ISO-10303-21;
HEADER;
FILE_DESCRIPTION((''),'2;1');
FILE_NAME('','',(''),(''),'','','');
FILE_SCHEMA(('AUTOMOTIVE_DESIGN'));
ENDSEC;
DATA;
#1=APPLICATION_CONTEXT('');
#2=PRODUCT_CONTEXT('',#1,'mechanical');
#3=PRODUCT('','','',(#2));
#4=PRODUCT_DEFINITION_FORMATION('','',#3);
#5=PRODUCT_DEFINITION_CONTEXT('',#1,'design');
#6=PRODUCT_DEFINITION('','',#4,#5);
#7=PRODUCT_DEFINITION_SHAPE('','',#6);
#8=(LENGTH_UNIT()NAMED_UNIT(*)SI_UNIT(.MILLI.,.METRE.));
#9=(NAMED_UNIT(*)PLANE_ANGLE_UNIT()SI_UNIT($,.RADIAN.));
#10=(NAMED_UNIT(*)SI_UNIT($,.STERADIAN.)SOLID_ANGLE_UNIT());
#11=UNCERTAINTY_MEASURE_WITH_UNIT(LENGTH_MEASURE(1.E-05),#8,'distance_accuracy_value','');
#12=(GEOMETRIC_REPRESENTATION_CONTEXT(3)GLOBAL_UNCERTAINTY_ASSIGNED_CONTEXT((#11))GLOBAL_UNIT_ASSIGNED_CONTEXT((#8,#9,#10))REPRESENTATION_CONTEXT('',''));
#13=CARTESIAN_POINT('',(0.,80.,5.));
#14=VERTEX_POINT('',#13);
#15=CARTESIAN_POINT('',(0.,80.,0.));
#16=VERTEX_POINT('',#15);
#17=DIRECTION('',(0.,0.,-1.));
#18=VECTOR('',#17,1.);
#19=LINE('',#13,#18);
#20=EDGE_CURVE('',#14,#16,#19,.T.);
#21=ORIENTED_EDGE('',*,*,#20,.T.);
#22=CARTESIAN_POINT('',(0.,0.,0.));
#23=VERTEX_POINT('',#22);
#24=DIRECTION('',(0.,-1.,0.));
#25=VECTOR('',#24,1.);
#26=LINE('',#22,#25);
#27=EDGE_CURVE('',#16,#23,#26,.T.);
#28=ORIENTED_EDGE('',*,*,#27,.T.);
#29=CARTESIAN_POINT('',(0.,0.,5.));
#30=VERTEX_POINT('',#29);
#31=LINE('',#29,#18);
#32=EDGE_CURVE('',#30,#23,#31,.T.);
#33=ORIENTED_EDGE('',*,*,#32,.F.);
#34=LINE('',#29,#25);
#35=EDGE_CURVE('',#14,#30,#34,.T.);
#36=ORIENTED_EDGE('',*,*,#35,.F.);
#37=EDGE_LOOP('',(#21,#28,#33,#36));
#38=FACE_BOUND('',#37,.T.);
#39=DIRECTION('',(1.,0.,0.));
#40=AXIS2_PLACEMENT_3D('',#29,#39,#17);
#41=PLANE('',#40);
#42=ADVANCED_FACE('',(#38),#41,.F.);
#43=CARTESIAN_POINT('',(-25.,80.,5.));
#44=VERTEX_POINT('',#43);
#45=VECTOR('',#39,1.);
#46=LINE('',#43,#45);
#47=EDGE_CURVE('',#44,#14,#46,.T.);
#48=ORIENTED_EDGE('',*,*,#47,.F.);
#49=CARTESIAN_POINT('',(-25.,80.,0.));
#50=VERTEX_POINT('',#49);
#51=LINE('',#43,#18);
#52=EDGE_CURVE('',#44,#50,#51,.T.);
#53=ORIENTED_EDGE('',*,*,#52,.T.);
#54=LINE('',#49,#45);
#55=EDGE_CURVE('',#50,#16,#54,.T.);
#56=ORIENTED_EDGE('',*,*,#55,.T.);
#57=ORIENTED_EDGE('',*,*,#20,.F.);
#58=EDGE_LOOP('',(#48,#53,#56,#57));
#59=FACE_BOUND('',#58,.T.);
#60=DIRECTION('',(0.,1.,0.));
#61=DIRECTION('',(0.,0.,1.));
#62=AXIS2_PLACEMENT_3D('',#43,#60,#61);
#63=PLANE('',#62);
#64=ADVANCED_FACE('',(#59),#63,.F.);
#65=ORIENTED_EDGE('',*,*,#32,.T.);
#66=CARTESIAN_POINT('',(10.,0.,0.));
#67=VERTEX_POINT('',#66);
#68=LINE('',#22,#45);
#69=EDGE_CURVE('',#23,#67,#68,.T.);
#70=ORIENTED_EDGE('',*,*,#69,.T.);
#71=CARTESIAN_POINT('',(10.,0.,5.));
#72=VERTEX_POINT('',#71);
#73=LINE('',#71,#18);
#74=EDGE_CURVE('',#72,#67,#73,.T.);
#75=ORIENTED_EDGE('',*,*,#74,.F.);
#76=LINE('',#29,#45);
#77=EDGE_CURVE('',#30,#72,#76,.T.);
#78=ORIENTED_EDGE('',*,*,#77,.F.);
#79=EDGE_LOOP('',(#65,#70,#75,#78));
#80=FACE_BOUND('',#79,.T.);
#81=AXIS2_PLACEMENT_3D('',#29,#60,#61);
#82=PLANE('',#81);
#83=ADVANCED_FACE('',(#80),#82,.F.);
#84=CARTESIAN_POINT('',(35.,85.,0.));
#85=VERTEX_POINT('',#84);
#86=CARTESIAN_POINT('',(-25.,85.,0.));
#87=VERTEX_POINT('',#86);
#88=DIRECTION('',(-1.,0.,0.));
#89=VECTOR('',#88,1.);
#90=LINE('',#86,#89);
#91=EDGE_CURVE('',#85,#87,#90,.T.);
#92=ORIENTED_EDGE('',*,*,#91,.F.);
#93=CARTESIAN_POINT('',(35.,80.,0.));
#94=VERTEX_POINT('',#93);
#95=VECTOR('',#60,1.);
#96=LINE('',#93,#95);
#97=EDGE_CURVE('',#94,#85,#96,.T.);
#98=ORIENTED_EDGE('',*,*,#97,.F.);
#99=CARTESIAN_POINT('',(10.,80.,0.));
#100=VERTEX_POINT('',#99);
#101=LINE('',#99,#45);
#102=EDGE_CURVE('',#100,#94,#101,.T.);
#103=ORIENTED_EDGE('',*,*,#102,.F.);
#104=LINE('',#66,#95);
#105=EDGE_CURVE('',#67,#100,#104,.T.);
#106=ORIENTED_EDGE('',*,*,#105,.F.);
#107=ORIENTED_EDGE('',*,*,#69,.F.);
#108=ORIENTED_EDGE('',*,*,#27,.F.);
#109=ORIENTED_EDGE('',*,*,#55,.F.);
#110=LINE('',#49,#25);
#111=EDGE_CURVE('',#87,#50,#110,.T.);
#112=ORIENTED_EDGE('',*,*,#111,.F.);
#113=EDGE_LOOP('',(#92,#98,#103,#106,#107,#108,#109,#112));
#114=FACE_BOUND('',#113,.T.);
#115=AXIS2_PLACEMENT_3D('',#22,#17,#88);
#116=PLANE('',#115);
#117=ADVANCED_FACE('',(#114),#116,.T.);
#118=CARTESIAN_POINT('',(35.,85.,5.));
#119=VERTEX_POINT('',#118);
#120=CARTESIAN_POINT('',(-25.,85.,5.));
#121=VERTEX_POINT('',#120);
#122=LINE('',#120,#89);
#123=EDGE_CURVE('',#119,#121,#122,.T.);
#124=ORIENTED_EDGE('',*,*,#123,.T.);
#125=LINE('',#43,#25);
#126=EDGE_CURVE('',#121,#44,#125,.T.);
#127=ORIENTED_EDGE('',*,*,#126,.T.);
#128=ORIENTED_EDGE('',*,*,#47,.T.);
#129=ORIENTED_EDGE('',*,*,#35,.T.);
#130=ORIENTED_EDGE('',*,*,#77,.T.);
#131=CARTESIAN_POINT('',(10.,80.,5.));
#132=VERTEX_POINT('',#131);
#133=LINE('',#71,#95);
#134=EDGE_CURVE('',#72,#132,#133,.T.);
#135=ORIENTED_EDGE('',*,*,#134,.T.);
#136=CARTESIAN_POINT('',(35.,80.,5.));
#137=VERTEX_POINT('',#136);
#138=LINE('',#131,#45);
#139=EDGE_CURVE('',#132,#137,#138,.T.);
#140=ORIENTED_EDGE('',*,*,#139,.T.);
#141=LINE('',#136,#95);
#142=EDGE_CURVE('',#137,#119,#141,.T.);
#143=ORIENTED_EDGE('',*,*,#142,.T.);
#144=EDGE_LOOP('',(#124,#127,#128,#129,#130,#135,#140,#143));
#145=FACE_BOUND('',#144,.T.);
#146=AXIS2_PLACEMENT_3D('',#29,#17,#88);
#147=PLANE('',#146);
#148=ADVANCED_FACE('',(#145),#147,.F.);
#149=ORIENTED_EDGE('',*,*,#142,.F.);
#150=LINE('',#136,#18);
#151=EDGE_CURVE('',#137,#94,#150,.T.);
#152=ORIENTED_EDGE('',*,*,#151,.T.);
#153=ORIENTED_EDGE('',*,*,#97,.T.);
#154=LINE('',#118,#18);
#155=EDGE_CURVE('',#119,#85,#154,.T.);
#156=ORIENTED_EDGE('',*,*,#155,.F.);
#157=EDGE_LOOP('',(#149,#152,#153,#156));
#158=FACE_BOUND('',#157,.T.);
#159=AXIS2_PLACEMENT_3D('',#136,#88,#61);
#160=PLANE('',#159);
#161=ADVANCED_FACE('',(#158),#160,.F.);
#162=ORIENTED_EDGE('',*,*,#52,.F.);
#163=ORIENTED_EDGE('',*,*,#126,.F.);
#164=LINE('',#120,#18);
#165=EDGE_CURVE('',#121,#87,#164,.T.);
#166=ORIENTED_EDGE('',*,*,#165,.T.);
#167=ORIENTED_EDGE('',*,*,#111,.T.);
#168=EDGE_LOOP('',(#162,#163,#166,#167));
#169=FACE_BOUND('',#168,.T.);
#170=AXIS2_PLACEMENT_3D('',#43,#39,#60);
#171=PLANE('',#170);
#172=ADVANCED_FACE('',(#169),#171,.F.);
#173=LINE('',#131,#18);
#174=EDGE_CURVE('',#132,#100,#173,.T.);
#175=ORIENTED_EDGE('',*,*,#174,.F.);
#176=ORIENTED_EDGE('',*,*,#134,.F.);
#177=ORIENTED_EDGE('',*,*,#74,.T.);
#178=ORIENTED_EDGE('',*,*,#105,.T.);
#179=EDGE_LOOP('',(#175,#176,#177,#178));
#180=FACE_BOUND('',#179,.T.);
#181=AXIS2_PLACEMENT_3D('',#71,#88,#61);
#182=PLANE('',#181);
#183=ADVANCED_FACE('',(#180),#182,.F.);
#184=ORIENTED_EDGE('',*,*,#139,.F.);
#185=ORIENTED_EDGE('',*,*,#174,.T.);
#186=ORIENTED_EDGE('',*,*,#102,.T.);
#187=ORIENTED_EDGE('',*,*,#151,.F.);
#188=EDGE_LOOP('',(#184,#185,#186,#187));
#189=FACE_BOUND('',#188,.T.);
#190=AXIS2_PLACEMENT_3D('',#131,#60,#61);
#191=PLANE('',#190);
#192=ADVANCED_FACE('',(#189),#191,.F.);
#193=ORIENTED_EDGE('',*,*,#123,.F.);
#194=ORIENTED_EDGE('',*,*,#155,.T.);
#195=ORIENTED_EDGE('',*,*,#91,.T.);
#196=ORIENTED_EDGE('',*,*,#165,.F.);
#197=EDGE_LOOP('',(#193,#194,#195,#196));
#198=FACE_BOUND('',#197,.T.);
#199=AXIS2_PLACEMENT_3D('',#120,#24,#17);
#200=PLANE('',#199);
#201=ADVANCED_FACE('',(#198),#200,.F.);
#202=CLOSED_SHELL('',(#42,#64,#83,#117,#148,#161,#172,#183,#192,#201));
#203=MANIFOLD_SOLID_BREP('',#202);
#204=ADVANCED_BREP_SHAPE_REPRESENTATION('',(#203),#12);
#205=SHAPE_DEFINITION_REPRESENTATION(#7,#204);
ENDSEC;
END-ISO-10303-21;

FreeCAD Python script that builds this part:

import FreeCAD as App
import Part
import Sketcher


def add_polygon(sketch, points):
    """Adds a closed chain of lines whose ends are joined by coincident constraints."""
    first, n = sketch.GeometryCount, len(points)
    for a, b in zip(points, points[1:] + points[:1]):
        sketch.addGeometry(Part.LineSegment(App.Vector(*a, 0), App.Vector(*b, 0)), False)
    for i in range(n):
        sketch.addConstraint(Sketcher.Constraint("Coincident", first + i, 2, first + (i + 1) % n, 1))

doc = App.newDocument("Part")
params = doc.addObject("Spreadsheet::Sheet", "Params")
for row, (alias, value) in enumerate([
    ("sketch1_width", "25 mm"),
    ("sketch1_width2", "60 mm"),
    ("sketch1_height", "5 mm"),
    ("sketch1_height2", "80 mm"),
    ("pad1_length", "5 mm"),
], start=1):
    params.set(f"A{row}", alias)
    params.set(f"B{row}", "=" + value)
    params.setAlias(f"B{row}", alias)

body = doc.addObject("PartDesign::Body", "Body")

sketch1 = doc.addObject("Sketcher::SketchObject", "Sketch")
body.addObject(sketch1)
sketch1.AttachmentSupport = (doc.XY_Plane, [""])
sketch1.MapMode = "FlatFace"
add_polygon(sketch1, [(10, 80), (35, 80), (35, 85), (-25, 85), (-25, 80), (0, 80), (0, 0), (10, 0)])
sketch1.addConstraint(Sketcher.Constraint("Horizontal", 0))
sketch1.addConstraint(Sketcher.Constraint("Vertical", 1))
sketch1.addConstraint(Sketcher.Constraint("Horizontal", 2))
sketch1.addConstraint(Sketcher.Constraint("Vertical", 3))
sketch1.addConstraint(Sketcher.Constraint("Horizontal", 4))
sketch1.addConstraint(Sketcher.Constraint("Vertical", 5))
sketch1.addConstraint(Sketcher.Constraint("Horizontal", 6))
sketch1.addConstraint(Sketcher.Constraint("Vertical", 7))
sketch1.addConstraint(Sketcher.Constraint("Coincident", 5, 2, -1, 1))
sketch1.addConstraint(Sketcher.Constraint("Horizontal", 0, 2, 3, 2))
sketch1.addConstraint(Sketcher.Constraint("Equal", 0, 4))
sketch1.addConstraint(Sketcher.Constraint("DistanceX", 0, 1, 0, 2, 25.0))
sketch1.addConstraint(Sketcher.Constraint("DistanceX", 2, 2, 2, 1, 60.0))
sketch1.addConstraint(Sketcher.Constraint("DistanceY", 1, 1, 1, 2, 5.0))
sketch1.addConstraint(Sketcher.Constraint("DistanceY", 5, 2, 5, 1, 80.0))
sketch1.setExpression("Constraints[19]", "Params.sketch1_width")
sketch1.setExpression("Constraints[20]", "Params.sketch1_width2")
sketch1.setExpression("Constraints[21]", "Params.sketch1_height")
sketch1.setExpression("Constraints[22]", "Params.sketch1_height2")
pad1 = doc.addObject("PartDesign::Pad", "Pad")
body.addObject(pad1)
pad1.Profile = sketch1
pad1.setExpression("Length", "Params.pad1_length")

doc.recompute()
